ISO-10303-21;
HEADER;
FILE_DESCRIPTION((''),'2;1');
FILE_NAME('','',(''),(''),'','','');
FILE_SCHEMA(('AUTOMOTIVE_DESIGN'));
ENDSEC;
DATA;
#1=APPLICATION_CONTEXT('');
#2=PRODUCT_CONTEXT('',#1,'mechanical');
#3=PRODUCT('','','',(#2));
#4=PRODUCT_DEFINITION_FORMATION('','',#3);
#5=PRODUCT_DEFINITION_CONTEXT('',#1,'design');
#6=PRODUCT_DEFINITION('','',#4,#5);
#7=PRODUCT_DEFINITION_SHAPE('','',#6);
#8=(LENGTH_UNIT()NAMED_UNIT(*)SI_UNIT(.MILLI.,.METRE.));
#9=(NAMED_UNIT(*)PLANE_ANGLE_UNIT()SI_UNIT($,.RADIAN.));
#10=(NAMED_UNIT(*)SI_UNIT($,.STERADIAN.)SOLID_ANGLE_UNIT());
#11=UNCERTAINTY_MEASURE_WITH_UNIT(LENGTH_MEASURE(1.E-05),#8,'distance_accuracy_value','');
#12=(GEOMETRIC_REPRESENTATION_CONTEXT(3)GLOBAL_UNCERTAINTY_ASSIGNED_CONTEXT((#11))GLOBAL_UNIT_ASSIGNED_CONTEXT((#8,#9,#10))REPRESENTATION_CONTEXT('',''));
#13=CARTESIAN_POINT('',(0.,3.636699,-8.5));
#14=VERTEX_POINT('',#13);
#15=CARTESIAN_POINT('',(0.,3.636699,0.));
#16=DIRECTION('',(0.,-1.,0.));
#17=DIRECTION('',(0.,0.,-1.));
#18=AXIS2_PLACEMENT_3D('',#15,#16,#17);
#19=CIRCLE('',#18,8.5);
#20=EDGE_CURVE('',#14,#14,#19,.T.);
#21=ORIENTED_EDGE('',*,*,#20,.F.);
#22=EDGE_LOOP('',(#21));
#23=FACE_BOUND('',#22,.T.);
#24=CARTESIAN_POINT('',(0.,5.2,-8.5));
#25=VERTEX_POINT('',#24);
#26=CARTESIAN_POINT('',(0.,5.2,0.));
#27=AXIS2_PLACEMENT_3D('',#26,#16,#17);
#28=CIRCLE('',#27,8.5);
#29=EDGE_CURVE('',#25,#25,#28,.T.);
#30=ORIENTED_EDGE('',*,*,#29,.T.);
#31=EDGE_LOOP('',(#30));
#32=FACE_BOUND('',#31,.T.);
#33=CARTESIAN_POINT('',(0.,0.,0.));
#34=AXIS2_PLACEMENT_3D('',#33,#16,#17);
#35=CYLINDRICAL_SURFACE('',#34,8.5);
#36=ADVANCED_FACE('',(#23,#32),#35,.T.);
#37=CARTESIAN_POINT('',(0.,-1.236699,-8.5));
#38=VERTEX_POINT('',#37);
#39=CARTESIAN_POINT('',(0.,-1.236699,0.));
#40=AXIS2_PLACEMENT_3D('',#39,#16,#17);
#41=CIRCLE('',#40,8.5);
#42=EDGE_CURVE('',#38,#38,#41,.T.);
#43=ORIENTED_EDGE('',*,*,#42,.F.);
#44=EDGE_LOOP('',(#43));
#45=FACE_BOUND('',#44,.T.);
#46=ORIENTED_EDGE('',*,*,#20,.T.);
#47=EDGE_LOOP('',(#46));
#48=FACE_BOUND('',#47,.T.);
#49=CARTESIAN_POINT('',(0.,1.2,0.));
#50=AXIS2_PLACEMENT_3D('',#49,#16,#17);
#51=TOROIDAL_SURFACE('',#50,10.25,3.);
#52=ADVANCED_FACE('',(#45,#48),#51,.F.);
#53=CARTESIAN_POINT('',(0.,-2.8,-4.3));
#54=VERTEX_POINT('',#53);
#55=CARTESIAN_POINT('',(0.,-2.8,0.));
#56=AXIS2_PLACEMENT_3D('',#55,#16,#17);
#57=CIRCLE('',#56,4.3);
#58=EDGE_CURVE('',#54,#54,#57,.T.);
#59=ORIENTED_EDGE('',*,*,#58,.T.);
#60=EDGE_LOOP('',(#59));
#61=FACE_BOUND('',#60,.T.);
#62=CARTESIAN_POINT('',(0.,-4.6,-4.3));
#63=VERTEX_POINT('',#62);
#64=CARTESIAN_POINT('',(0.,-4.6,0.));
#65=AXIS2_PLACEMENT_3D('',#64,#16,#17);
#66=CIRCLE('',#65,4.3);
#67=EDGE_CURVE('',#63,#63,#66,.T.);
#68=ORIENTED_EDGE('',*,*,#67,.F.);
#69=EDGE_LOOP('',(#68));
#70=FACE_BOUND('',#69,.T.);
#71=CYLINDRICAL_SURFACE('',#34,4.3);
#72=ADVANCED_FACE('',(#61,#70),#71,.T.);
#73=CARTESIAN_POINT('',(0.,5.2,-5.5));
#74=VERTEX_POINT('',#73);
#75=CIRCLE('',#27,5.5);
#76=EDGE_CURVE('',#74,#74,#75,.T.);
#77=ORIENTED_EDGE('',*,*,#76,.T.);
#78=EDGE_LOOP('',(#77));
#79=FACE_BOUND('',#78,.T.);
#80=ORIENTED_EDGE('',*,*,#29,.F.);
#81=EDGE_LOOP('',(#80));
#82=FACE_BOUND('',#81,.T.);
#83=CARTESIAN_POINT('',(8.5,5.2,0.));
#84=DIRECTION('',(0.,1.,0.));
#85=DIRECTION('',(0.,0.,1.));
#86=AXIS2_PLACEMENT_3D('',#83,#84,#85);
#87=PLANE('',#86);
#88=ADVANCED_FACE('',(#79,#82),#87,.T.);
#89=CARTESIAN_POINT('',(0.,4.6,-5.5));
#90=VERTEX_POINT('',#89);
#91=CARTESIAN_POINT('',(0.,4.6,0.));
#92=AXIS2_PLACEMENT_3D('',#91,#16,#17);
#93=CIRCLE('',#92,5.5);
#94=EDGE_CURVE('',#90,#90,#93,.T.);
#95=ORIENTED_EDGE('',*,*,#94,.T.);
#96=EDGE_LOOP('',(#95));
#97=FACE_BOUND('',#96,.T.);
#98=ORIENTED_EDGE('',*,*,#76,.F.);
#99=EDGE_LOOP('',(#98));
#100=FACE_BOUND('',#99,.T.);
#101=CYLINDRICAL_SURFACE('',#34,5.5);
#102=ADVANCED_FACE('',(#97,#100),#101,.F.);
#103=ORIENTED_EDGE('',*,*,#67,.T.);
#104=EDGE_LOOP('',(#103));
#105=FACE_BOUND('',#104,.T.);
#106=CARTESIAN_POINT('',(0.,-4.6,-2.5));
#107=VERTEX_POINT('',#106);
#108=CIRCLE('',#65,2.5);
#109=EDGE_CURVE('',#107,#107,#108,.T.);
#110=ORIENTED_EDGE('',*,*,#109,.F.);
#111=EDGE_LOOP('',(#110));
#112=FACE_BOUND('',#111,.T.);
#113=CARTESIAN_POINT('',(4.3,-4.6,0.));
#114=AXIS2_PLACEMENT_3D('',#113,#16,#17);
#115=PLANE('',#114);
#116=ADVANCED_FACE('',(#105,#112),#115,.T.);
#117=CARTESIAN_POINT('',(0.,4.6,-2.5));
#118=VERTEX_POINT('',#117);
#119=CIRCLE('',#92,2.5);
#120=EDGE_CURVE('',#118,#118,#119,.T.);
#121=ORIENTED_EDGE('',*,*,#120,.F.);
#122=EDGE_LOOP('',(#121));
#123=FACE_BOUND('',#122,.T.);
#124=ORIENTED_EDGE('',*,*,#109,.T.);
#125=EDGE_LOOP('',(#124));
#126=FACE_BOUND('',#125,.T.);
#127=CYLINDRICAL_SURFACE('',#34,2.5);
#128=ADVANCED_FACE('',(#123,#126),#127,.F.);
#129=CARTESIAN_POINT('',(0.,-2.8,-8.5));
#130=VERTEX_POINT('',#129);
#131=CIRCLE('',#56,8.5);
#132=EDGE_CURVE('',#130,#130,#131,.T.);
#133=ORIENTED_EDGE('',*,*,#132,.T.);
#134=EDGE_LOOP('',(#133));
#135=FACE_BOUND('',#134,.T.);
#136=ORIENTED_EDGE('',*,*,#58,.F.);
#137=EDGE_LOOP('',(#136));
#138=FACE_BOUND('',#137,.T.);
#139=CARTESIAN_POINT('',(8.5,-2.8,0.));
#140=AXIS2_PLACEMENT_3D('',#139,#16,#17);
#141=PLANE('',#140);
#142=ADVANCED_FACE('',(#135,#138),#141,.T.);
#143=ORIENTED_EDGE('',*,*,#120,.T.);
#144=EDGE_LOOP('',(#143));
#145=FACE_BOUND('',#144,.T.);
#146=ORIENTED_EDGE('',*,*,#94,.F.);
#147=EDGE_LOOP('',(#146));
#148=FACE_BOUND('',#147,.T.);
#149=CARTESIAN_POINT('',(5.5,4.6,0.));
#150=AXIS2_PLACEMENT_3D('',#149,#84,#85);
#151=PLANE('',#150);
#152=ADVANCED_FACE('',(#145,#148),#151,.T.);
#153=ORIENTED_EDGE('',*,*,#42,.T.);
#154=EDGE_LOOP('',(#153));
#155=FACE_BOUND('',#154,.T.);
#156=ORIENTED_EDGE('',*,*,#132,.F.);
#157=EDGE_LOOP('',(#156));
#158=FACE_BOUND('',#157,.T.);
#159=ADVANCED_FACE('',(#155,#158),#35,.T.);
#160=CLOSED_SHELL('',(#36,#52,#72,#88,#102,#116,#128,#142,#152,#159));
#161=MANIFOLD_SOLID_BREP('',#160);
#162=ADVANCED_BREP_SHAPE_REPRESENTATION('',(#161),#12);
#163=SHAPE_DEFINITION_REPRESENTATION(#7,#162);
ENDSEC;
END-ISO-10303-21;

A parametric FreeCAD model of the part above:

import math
import FreeCAD as App
import Part
import Sketcher

doc = App.newDocument("Part")
params = doc.addObject("Spreadsheet::Sheet", "Params")
for row, (alias, value) in enumerate([
    ("sketch1_radius", "3 mm"),
    ("sketch1_width", "3 mm"),
    ("sketch1_width2", "1.8 mm"),
    ("sketch1_height", "9.2 mm"),
    ("sketch1_height2", "0.6 mm"),
    ("revolution_angle", "360 deg"),
], start=1):
    params.set(f"A{row}", alias)
    params.set(f"B{row}", "=" + value)
    params.setAlias(f"B{row}", alias)

body = doc.addObject("PartDesign::Body", "Body")

# Sketch on XY plane
sketch1 = body.newObject("Sketcher::SketchObject", "Sketch")
sketch1.AttachmentSupport = (doc.getObject("XY_Plane"), [""])
sketch1.MapMode = "FlatFace"
sketch1.addGeometry(Part.LineSegment(App.Vector(2.5, 4.6, 0), App.Vector(2.5, -4.6, 0)), False)
sketch1.addGeometry(Part.LineSegment(App.Vector(2.5, -4.6, 0), App.Vector(4.3, -4.6, 0)), False)
sketch1.addGeometry(Part.LineSegment(App.Vector(4.3, -4.6, 0), App.Vector(4.3, -2.8, 0)), False)
sketch1.addGeometry(Part.LineSegment(App.Vector(4.3, -2.8, 0), App.Vector(8.5, -2.8, 0)), False)
sketch1.addGeometry(Part.LineSegment(App.Vector(8.5, -2.8, 0), App.Vector(8.5, -1.2, 0)), False)
sketch1.addGeometry(Part.ArcOfCircle(Part.Circle(App.Vector(10.2, 1.2, 0), App.Vector(0, 0, 1), 3), math.radians(126), math.radians(234)), False)
sketch1.addGeometry(Part.LineSegment(App.Vector(8.5, 3.6, 0), App.Vector(8.5, 5.2, 0)), False)
sketch1.addGeometry(Part.LineSegment(App.Vector(8.5, 5.2, 0), App.Vector(5.5, 5.2, 0)), False)
sketch1.addGeometry(Part.LineSegment(App.Vector(5.5, 5.2, 0), App.Vector(5.5, 4.6, 0)), False)
sketch1.addGeometry(Part.LineSegment(App.Vector(5.5, 4.6, 0), App.Vector(2.5, 4.6, 0)), False)
sketch1.addConstraint(Sketcher.Constraint("Coincident", 0, 2, 1, 1))
sketch1.addConstraint(Sketcher.Constraint("Coincident", 1, 2, 2, 1))
sketch1.addConstraint(Sketcher.Constraint("Coincident", 2, 2, 3, 1))
sketch1.addConstraint(Sketcher.Constraint("Coincident", 3, 2, 4, 1))
sketch1.addConstraint(Sketcher.Constraint("Coincident", 4, 2, 5, 2))
sketch1.addConstraint(Sketcher.Constraint("Coincident", 5, 1, 6, 1))
sketch1.addConstraint(Sketcher.Constraint("Coincident", 6, 2, 7, 1))
sketch1.addConstraint(Sketcher.Constraint("Coincident", 7, 2, 8, 1))
sketch1.addConstraint(Sketcher.Constraint("Coincident", 8, 2, 9, 1))
sketch1.addConstraint(Sketcher.Constraint("Coincident", 9, 2, 0, 1))
sketch1.addConstraint(Sketcher.Constraint("Vertical", 0))
sketch1.addConstraint(Sketcher.Constraint("Horizontal", 1))
sketch1.addConstraint(Sketcher.Constraint("Vertical", 2))
sketch1.addConstraint(Sketcher.Constraint("Horizontal", 3))
sketch1.addConstraint(Sketcher.Constraint("Vertical", 4))
sketch1.addConstraint(Sketcher.Constraint("Vertical", 6))
sketch1.addConstraint(Sketcher.Constraint("Horizontal", 7))
sketch1.addConstraint(Sketcher.Constraint("Vertical", 8))
sketch1.addConstraint(Sketcher.Constraint("Horizontal", 9))
sketch1.addConstraint(Sketcher.Constraint("Vertical", 4, 2, 5, 1))
sketch1.addConstraint(Sketcher.Constraint("Equal", 7, 9))
sketch1.addConstraint(Sketcher.Constraint("Equal", 1, 2))
sketch1.addConstraint(Sketcher.Constraint("Equal", 4, 6))
sketch1.addConstraint(Sketcher.Constraint("Radius", 5, 3.0))
sketch1.addConstraint(Sketcher.Constraint("DistanceX", 7, 2, 7, 1, 3.0))
sketch1.addConstraint(Sketcher.Constraint("DistanceX", 1, 1, 1, 2, 1.8))
sketch1.addConstraint(Sketcher.Constraint("DistanceY", 0, 2, 0, 1, 9.2))
sketch1.addConstraint(Sketcher.Constraint("DistanceY", 8, 2, 8, 1, 0.6))
sketch1.addConstraint(Sketcher.Constraint("DistanceY", -1, 1, 5, 3, 1.2))
sketch1.addConstraint(Sketcher.Constraint("DistanceX", -1, 1, 0, 2, 2.5))
sketch1.addConstraint(Sketcher.Constraint("DistanceX", -1, 1, 5, 3, 10.25))
sketch1.setExpression("Constraints[23]", "Params.sketch1_radius")
sketch1.setExpression("Constraints[24]", "Params.sketch1_width")
sketch1.setExpression("Constraints[25]", "Params.sketch1_width2")
sketch1.setExpression("Constraints[26]", "Params.sketch1_height")
sketch1.setExpression("Constraints[27]", "Params.sketch1_height2")
revolution = body.newObject("PartDesign::Revolution", "Revolution")
revolution.Profile = sketch1
revolution.ReferenceAxis = (sketch1, ["V_Axis"])
revolution.setExpression("Angle", "Params.revolution_angle")

doc.recompute()
